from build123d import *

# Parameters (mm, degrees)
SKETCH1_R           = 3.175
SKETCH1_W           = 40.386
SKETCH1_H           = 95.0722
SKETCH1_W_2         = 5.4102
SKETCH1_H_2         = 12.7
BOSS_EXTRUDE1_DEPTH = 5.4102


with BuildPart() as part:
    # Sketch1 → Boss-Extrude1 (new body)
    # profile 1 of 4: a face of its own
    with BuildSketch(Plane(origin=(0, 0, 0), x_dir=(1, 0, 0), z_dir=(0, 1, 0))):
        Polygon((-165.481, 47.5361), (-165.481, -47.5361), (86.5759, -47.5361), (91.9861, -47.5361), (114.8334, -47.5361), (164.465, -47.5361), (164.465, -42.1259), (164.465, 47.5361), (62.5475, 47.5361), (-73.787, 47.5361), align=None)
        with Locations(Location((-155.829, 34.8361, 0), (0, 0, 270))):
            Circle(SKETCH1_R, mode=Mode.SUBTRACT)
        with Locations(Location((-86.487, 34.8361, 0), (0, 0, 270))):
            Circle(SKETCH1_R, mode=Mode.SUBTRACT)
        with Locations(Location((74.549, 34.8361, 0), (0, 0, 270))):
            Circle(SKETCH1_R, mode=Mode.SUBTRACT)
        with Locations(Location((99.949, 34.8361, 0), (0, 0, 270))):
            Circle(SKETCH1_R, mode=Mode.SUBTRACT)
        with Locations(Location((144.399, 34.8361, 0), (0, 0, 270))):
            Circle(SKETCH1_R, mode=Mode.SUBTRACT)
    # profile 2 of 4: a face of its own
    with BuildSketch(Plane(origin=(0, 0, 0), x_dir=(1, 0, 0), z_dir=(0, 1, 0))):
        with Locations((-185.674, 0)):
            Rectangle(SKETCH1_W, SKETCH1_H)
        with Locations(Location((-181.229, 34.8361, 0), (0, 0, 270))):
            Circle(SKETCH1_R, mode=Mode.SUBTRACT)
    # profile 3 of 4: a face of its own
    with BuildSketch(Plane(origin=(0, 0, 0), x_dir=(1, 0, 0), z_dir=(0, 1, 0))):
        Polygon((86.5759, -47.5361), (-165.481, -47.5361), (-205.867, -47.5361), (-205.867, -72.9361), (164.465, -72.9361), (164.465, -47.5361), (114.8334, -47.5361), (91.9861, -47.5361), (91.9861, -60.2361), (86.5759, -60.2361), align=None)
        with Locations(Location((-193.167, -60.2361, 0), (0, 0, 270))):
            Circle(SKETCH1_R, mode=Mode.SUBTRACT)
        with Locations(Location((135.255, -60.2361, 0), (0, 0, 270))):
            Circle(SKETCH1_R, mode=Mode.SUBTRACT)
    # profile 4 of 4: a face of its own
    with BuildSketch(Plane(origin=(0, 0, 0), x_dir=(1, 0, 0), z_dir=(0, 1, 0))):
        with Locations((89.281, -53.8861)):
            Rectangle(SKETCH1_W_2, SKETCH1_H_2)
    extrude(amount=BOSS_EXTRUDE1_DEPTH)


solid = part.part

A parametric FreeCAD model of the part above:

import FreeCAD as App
import Part
import Sketcher
Q = App.Units.Quantity


def add_polygon(sketch, points):
    """Adds a closed chain of lines whose ends are joined by coincident constraints."""
    first, n = sketch.GeometryCount, len(points)
    for a, b in zip(points, points[1:] + points[:1]):
        sketch.addGeometry(Part.LineSegment(App.Vector(*a, 0), App.Vector(*b, 0)), False)
    for i in range(n):
        sketch.addConstraint(Sketcher.Constraint("Coincident", first + i, 2, first + (i + 1) % n, 1))

doc = App.newDocument("Part")
body = doc.addObject("PartDesign::Body", "Body")

sketch1 = doc.addObject("Sketcher::SketchObject", "Sketch")
body.addObject(sketch1)
sketch1.AttachmentSupport = (doc.XZ_Plane, [""])
sketch1.MapMode = "FlatFace"
add_polygon(sketch1, [(164.465, -47.5361), (-205.867, -47.5361), (-205.867, 72.9361), (164.465, 72.9361)])
sketch1.addGeometry(Part.Circle(App.Vector(-155.829, -34.8361, 0), App.Vector(0, 0, 1), 3.175), False)
sketch1.addGeometry(Part.Circle(App.Vector(-86.487, -34.8361, 0), App.Vector(0, 0, 1), 3.175), False)
sketch1.addGeometry(Part.Circle(App.Vector(74.549, -34.8361, 0), App.Vector(0, 0, 1), 3.175), False)
sketch1.addGeometry(Part.Circle(App.Vector(99.949, -34.8361, 0), App.Vector(0, 0, 1), 3.175), False)
sketch1.addGeometry(Part.Circle(App.Vector(144.399, -34.8361, 0), App.Vector(0, 0, 1), 3.175), False)
sketch1.addGeometry(Part.Circle(App.Vector(-181.229, -34.8361, 0), App.Vector(0, 0, 1), 3.175), False)
sketch1.addGeometry(Part.Circle(App.Vector(135.255, 60.2361, 0), App.Vector(0, 0, 1), 3.175), False)
sketch1.addGeometry(Part.Circle(App.Vector(-193.167, 60.2361, 0), App.Vector(0, 0, 1), 3.175), False)
sketch1.addConstraint([
    Sketcher.Constraint("Horizontal", 0),
    Sketcher.Constraint("Vertical", 1),
    Sketcher.Constraint("Horizontal", 2),
    Sketcher.Constraint("Vertical", 3),
    Sketcher.Constraint("Equal", 4, 5),
    Sketcher.Constraint("Equal", 5, 6),
    Sketcher.Constraint("Equal", 6, 7),
    Sketcher.Constraint("Equal", 7, 8),
    Sketcher.Constraint("Equal", 8, 9),
    Sketcher.Constraint("Equal", 9, 10),
    Sketcher.Constraint("Equal", 10, 11),
    Sketcher.Constraint("Horizontal", 4, 3, 5, 3),
    Sketcher.Constraint("Horizontal", 5, 3, 6, 3),
    Sketcher.Constraint("Horizontal", 6, 3, 7, 3),
    Sketcher.Constraint("Horizontal", 7, 3, 8, 3),
    Sketcher.Constraint("Horizontal", 8, 3, 9, 3),
    Sketcher.Constraint("Horizontal", 10, 3, 11, 3),
    Sketcher.Constraint("Diameter", 4, Q("0.25 in")),
    Sketcher.Constraint("DistanceX", 6, 3, 7, 3, Q("1 in")),
    Sketcher.Constraint("DistanceX", 9, 3, 4, 3, Q("1 in")),
    Sketcher.Constraint("DistanceX", 0, 2, 0, 1, Q("14.58 in")),
    Sketcher.Constraint("DistanceX", 11, 3, 5, 3, Q("4.2 in")),
    Sketcher.Constraint("DistanceY", 0, 2, 9, 3, Q("0.5 in")),
    Sketcher.Constraint("DistanceX", 0, 2, 11, 3, Q("0.5 in")),
    Sketcher.Constraint("DistanceY", 11, 3, 1, 2, Q("0.5 in")),
    Sketcher.Constraint("DistanceY", 1, 1, 1, 2, Q("4.743 in")),
    Sketcher.Constraint("DistanceX", 4, 3, 5, 3, Q("2.73 in")),
    Sketcher.Constraint("DistanceX", 5, 3, 6, 3, Q("6.34 in")),
    Sketcher.Constraint("DistanceX", 7, 3, 8, 3, Q("1.75 in")),
    Sketcher.Constraint("DistanceX", 10, 3, 8, 3, Q("0.36 in")),
    Sketcher.Constraint("DistanceX", 4, 3, -1, 1, Q("6.135 in")),
    Sketcher.Constraint("DistanceY", 4, 3, -1, 1, Q("1.3715 in")),
])
pad1 = doc.addObject("PartDesign::Pad", "Pad")
body.addObject(pad1)
pad1.Profile = sketch1
pad1.Length = Q("0.213 in")
pad1.Reversed = True

doc.recompute()
